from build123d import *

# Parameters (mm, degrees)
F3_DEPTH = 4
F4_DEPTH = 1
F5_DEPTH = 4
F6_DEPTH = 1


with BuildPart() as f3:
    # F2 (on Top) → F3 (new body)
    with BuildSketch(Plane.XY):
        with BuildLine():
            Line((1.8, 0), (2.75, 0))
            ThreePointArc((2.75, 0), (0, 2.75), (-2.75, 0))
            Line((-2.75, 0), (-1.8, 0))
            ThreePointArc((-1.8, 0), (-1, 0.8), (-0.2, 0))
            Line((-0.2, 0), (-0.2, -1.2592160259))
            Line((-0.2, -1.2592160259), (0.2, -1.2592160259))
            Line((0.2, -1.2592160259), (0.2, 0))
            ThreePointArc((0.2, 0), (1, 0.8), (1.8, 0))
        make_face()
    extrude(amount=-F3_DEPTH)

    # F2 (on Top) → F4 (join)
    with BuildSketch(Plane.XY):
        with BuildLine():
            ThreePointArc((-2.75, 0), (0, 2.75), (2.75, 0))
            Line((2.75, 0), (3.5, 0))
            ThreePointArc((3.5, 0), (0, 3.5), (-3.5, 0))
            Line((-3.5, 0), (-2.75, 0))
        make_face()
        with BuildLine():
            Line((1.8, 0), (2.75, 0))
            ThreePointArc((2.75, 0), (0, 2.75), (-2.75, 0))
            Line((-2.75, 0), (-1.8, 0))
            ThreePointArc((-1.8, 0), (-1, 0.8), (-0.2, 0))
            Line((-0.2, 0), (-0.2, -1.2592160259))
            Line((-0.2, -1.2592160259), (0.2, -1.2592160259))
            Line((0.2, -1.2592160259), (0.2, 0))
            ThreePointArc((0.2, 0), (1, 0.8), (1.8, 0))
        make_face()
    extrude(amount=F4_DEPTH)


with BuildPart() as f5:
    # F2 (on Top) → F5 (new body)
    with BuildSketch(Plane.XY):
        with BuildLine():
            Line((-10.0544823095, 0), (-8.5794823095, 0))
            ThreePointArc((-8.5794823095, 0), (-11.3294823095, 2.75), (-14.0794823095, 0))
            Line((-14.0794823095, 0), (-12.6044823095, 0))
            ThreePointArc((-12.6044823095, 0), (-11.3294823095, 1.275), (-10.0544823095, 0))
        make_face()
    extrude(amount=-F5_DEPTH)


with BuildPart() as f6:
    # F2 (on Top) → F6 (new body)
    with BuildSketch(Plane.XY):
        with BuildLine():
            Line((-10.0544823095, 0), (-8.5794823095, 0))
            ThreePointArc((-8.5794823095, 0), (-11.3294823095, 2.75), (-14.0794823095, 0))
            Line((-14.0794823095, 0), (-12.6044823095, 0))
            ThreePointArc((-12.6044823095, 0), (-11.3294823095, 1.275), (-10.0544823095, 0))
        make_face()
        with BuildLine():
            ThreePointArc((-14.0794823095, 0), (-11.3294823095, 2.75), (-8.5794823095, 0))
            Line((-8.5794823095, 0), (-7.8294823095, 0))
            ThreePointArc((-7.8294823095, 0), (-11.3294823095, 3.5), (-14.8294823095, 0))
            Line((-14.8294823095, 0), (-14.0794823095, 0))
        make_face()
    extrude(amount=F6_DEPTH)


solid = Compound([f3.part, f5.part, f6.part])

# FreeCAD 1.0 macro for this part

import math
import FreeCAD as App
import Part
import Sketcher

V = App.Vector
Q = App.Units.Quantity

doc = App.newDocument("Part")
body = doc.addObject("PartDesign::Body", "Body")

# Sketch on XY plane
sketch1 = body.newObject("Sketcher::SketchObject", "Sketch")
sketch1.AttachmentSupport = (doc.getObject("XY_Plane"), [""])
sketch1.MapMode = "FlatFace"
sketch1.addGeometry(Part.LineSegment(V(1.8, 0, 0), V(2.75, 0, 0)), False)
sketch1.addGeometry(Part.ArcOfCircle(Part.Circle(V(0, 0, 0), V(0, 0, 1), 2.75), math.radians(0), math.radians(180)), False)
sketch1.addGeometry(Part.LineSegment(V(-2.75, 0, 0), V(-1.8, 0, 0)), False)
sketch1.addGeometry(Part.ArcOfCircle(Part.Circle(V(-1, 0, 0), V(0, 0, 1), 0.8), math.radians(0), math.radians(180)), False)
sketch1.addGeometry(Part.LineSegment(V(-0.2, 0, 0), V(-0.2, -1.259216, 0)), False)
sketch1.addGeometry(Part.LineSegment(V(-0.2, -1.259216, 0), V(0.2, -1.259216, 0)), False)
sketch1.addGeometry(Part.LineSegment(V(0.2, -1.259216, 0), V(0.2, 0, 0)), False)
sketch1.addGeometry(Part.ArcOfCircle(Part.Circle(V(1, 0, 0), V(0, 0, 1), 0.8), math.radians(0), math.radians(180)), False)
sketch1.addConstraint(Sketcher.Constraint("Coincident", 0, 2, 1, 1))
sketch1.addConstraint(Sketcher.Constraint("Coincident", 1, 2, 2, 1))
sketch1.addConstraint(Sketcher.Constraint("Coincident", 2, 2, 3, 2))
sketch1.addConstraint(Sketcher.Constraint("Tangent", 3, 1, 4, 1))
sketch1.addConstraint(Sketcher.Constraint("Coincident", 4, 2, 5, 1))
sketch1.addConstraint(Sketcher.Constraint("Coincident", 5, 2, 6, 1))
sketch1.addConstraint(Sketcher.Constraint("Tangent", 6, 2, 7, 2))
sketch1.addConstraint(Sketcher.Constraint("Coincident", 7, 1, 0, 1))
sketch1.addConstraint(Sketcher.Constraint("Horizontal", 0))
sketch1.addConstraint(Sketcher.Constraint("Horizontal", 2))
sketch1.addConstraint(Sketcher.Constraint("Vertical", 4))
sketch1.addConstraint(Sketcher.Constraint("Horizontal", 5))
sketch1.addConstraint(Sketcher.Constraint("Vertical", 6))
sketch1.addConstraint(Sketcher.Constraint("Coincident", 1, 3, -1, 1))
sketch1.addConstraint(Sketcher.Constraint("Equal", 3, 7))
sketch1.addConstraint(Sketcher.Constraint("Symmetric", 3, 3, 7, 3, -1, 1))
sketch1.addConstraint(Sketcher.Constraint("PointOnObject", 3, 3, -1))
sketch1.addConstraint(Sketcher.Constraint("PointOnObject", 0, 2, -1))
sketch1.addConstraint(Sketcher.Constraint("PointOnObject", 1, 2, -1))
sketch1.addConstraint(Sketcher.Constraint("Radius", 3, Q("0.8 mm")))
sketch1.addConstraint(Sketcher.Constraint("Radius", 1, Q("2.75 mm")))
sketch1.addConstraint(Sketcher.Constraint("DistanceX", 5, 1, 5, 2, Q("0.4 mm")))
sketch1.addConstraint(Sketcher.Constraint("DistanceY", 4, 2, 4, 1, Q("1.259216 mm")))
pad1 = body.newObject("PartDesign::Pad", "Pad")
pad1.Profile = sketch1
pad1.Length = 4
pad1.Reversed = True

# Sketch on XY plane
sketch2 = body.newObject("Sketcher::SketchObject", "Sketch001")
sketch2.AttachmentSupport = (doc.getObject("XY_Plane"), [""])
sketch2.MapMode = "FlatFace"
sketch2.addGeometry(Part.ArcOfCircle(Part.Circle(V(0, 0, 0), V(0, 0, 1), 3.5), math.radians(0), math.radians(180)), False)
sketch2.addGeometry(Part.LineSegment(V(-3.5, 0, 0), V(-1.8, 0, 0)), False)
sketch2.addGeometry(Part.ArcOfCircle(Part.Circle(V(-1, 0, 0), V(0, 0, 1), 0.8), math.radians(0), math.radians(180)), False)
sketch2.addGeometry(Part.LineSegment(V(-0.2, 0, 0), V(-0.2, -1.259216, 0)), False)
sketch2.addGeometry(Part.LineSegment(V(-0.2, -1.259216, 0), V(0.2, -1.259216, 0)), False)
sketch2.addGeometry(Part.LineSegment(V(0.2, -1.259216, 0), V(0.2, 0, 0)), False)
sketch2.addGeometry(Part.ArcOfCircle(Part.Circle(V(1, 0, 0), V(0, 0, 1), 0.8), math.radians(0), math.radians(180)), False)
sketch2.addGeometry(Part.LineSegment(V(1.8, 0, 0), V(3.5, 0, 0)), False)
sketch2.addConstraint(Sketcher.Constraint("Coincident", 0, 2, 1, 1))
sketch2.addConstraint(Sketcher.Constraint("Coincident", 1, 2, 2, 2))
sketch2.addConstraint(Sketcher.Constraint("Tangent", 2, 1, 3, 1))
sketch2.addConstraint(Sketcher.Constraint("Coincident", 3, 2, 4, 1))
sketch2.addConstraint(Sketcher.Constraint("Coincident", 4, 2, 5, 1))
sketch2.addConstraint(Sketcher.Constraint("Tangent", 5, 2, 6, 2))
sketch2.addConstraint(Sketcher.Constraint("Coincident", 6, 1, 7, 1))
sketch2.addConstraint(Sketcher.Constraint("Coincident", 7, 2, 0, 1))
sketch2.addConstraint(Sketcher.Constraint("Horizontal", 1))
sketch2.addConstraint(Sketcher.Constraint("Vertical", 3))
sketch2.addConstraint(Sketcher.Constraint("Horizontal", 4))
sketch2.addConstraint(Sketcher.Constraint("Vertical", 5))
sketch2.addConstraint(Sketcher.Constraint("Horizontal", 7))
sketch2.addConstraint(Sketcher.Constraint("Coincident", 0, 3, -1, 1))
sketch2.addConstraint(Sketcher.Constraint("Equal", 2, 6))
sketch2.addConstraint(Sketcher.Constraint("Symmetric", 2, 3, 6, 3, -1, 1))
sketch2.addConstraint(Sketcher.Constraint("PointOnObject", 2, 3, -1))
sketch2.addConstraint(Sketcher.Constraint("PointOnObject", 0, 2, -1))
sketch2.addConstraint(Sketcher.Constraint("PointOnObject", 6, 1, -1))
sketch2.addConstraint(Sketcher.Constraint("Radius", 0, Q("3.5 mm")))
sketch2.addConstraint(Sketcher.Constraint("Radius", 2, Q("0.8 mm")))
sketch2.addConstraint(Sketcher.Constraint("DistanceX", 1, 1, 1, 2, Q("1.7 mm")))
sketch2.addConstraint(Sketcher.Constraint("DistanceY", 3, 2, 3, 1, Q("1.259216 mm")))
pad2 = body.newObject("PartDesign::Pad", "Pad001")
pad2.Profile = sketch2
pad2.Length = 1
body2 = doc.addObject("PartDesign::Body", "Body001")

# Sketch on XY plane
sketch3 = body2.newObject("Sketcher::SketchObject", "Sketch002")
sketch3.AttachmentSupport = (doc.getObject("XY_Plane001"), [""])
sketch3.MapMode = "FlatFace"
sketch3.addGeometry(Part.LineSegment(V(-10.054482, 0, 0), V(-8.579482, 0, 0)), False)
sketch3.addGeometry(Part.ArcOfCircle(Part.Circle(V(-11.329482, 0, 0), V(0, 0, 1), 2.75), math.radians(0), math.radians(180)), False)
sketch3.addGeometry(Part.LineSegment(V(-14.079482, 0, 0), V(-12.604482, 0, 0)), False)
sketch3.addGeometry(Part.ArcOfCircle(Part.Circle(V(-11.329482, 0, 0), V(0, 0, 1), 1.275), math.radians(0), math.radians(180)), False)
sketch3.addConstraint(Sketcher.Constraint("Coincident", 0, 2, 1, 1))
sketch3.addConstraint(Sketcher.Constraint("Coincident", 1, 2, 2, 1))
sketch3.addConstraint(Sketcher.Constraint("Coincident", 2, 2, 3, 2))
sketch3.addConstraint(Sketcher.Constraint("Coincident", 3, 1, 0, 1))
sketch3.addConstraint(Sketcher.Constraint("Horizontal", 0))
sketch3.addConstraint(Sketcher.Constraint("Horizontal", 2))
sketch3.addConstraint(Sketcher.Constraint("Coincident", 3, 3, 1, 3))
sketch3.addConstraint(Sketcher.Constraint("PointOnObject", 1, 3, -1))
sketch3.addConstraint(Sketcher.Constraint("PointOnObject", 0, 2, -1))
sketch3.addConstraint(Sketcher.Constraint("PointOnObject", 1, 2, -1))
sketch3.addConstraint(Sketcher.Constraint("Radius", 1, Q("2.75 mm")))
sketch3.addConstraint(Sketcher.Constraint("Radius", 3, Q("1.275 mm")))
sketch3.addConstraint(Sketcher.Constraint("DistanceX", 1, 3, -1, 1, Q("11.329482 mm")))
pad3 = body2.newObject("PartDesign::Pad", "Pad002")
pad3.Profile = sketch3
pad3.Length = 4
pad3.Reversed = True
body3 = doc.addObject("PartDesign::Body", "Body002")

# Sketch on XY plane
sketch4 = body3.newObject("Sketcher::SketchObject", "Sketch003")
sketch4.AttachmentSupport = (doc.getObject("XY_Plane002"), [""])
sketch4.MapMode = "FlatFace"
sketch4.addGeometry(Part.LineSegment(V(-10.054482, 0, 0), V(-7.829482, 0, 0)), False)
sketch4.addGeometry(Part.ArcOfCircle(Part.Circle(V(-11.329482, 0, 0), V(0, 0, 1), 3.5), math.radians(0), math.radians(180)), False)
sketch4.addGeometry(Part.LineSegment(V(-14.829482, 0, 0), V(-12.604482, 0, 0)), False)
sketch4.addGeometry(Part.ArcOfCircle(Part.Circle(V(-11.329482, 0, 0), V(0, 0, 1), 1.275), math.radians(0), math.radians(180)), False)
sketch4.addConstraint(Sketcher.Constraint("Coincident", 0, 2, 1, 1))
sketch4.addConstraint(Sketcher.Constraint("Coincident", 1, 2, 2, 1))
sketch4.addConstraint(Sketcher.Constraint("Coincident", 2, 2, 3, 2))
sketch4.addConstraint(Sketcher.Constraint("Coincident", 3, 1, 0, 1))
sketch4.addConstraint(Sketcher.Constraint("Horizontal", 0))
sketch4.addConstraint(Sketcher.Constraint("Horizontal", 2))
sketch4.addConstraint(Sketcher.Constraint("Coincident", 3, 3, 1, 3))
sketch4.addConstraint(Sketcher.Constraint("PointOnObject", 1, 3, -1))
sketch4.addConstraint(Sketcher.Constraint("PointOnObject", 0, 2, -1))
sketch4.addConstraint(Sketcher.Constraint("PointOnObject", 1, 2, -1))
sketch4.addConstraint(Sketcher.Constraint("Radius", 1, Q("3.5 mm")))
sketch4.addConstraint(Sketcher.Constraint("Radius", 3, Q("1.275 mm")))
sketch4.addConstraint(Sketcher.Constraint("DistanceX", 1, 3, -1, 1, Q("11.329482 mm")))
pad4 = body3.newObject("PartDesign::Pad", "Pad003")
pad4.Profile = sketch4
pad4.Length = 1

doc.recompute()
